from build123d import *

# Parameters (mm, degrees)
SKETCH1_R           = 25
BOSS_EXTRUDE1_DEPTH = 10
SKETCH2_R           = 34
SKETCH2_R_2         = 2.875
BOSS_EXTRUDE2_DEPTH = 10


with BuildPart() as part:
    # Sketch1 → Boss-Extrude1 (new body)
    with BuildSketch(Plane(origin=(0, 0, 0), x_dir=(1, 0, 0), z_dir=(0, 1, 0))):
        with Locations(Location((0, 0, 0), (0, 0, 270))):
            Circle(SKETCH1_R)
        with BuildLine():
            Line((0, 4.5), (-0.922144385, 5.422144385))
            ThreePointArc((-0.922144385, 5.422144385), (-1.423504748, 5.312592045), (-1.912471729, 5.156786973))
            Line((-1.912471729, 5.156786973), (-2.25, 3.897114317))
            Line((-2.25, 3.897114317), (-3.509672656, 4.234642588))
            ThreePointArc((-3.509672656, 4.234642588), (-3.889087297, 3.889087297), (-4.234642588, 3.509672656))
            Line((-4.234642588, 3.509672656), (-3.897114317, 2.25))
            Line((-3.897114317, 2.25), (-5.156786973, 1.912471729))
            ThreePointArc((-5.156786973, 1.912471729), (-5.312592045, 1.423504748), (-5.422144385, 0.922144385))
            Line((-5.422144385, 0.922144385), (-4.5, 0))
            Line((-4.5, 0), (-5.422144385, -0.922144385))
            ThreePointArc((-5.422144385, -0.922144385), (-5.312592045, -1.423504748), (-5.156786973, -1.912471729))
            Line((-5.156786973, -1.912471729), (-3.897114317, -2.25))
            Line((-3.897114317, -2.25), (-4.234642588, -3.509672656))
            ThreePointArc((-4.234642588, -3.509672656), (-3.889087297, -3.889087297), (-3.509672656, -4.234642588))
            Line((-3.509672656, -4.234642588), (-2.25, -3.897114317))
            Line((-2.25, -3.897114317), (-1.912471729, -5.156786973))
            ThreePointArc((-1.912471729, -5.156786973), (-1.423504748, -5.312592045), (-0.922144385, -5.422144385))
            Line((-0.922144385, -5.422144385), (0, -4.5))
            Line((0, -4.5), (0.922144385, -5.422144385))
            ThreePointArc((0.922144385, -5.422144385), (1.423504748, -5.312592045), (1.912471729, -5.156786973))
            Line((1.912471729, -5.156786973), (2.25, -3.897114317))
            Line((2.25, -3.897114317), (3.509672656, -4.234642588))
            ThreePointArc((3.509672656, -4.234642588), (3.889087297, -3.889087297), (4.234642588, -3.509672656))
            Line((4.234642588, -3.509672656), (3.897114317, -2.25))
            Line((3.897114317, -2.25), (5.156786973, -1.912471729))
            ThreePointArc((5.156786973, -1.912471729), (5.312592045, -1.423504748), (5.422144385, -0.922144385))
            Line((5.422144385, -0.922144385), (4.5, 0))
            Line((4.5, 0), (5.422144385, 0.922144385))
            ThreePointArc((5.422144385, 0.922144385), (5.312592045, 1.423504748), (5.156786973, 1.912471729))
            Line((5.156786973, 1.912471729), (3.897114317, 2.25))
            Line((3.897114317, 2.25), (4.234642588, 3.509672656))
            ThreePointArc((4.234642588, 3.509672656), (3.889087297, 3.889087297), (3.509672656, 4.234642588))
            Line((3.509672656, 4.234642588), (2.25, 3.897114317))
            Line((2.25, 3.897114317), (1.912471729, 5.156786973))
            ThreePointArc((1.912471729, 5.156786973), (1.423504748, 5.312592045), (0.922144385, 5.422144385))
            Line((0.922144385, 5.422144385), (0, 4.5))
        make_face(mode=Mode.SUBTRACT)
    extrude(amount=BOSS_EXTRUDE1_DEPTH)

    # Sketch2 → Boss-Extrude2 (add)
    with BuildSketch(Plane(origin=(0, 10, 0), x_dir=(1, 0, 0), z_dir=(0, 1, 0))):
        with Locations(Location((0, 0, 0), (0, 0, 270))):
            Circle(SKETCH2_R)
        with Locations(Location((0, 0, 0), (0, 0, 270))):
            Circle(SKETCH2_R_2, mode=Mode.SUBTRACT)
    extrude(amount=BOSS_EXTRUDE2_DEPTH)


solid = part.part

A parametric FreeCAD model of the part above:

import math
import FreeCAD as App
import Part
import Sketcher

V = App.Vector
Q = App.Units.Quantity

doc = App.newDocument("Part")
params = doc.addObject("Spreadsheet::Sheet", "Params")
for row, (alias, value) in enumerate([
    ("sketch1_diameter", "50 mm"),
    ("sketch1_radius", "5.5 mm"),
    ("pad1_length", "10 mm"),
    ("sketch2_diameter", "68 mm"),
    ("sketch2_diameter2", "5.75 mm"),
    ("pad2_length", "10 mm"),
], start=1):
    params.set(f"A{row}", alias)
    params.set(f"B{row}", "=" + value)
    params.setAlias(f"B{row}", alias)

body = doc.addObject("PartDesign::Body", "Body")

sketch1 = body.newObject("Sketcher::SketchObject", "Sketch")
sketch1.AttachmentSupport = (doc.getObject("XZ_Plane"), [""])
sketch1.MapMode = "FlatFace"
sketch1.addGeometry(Part.Circle(V(0, 0, 0), V(0, 0, 1), 25), False)
sketch1.addGeometry(Part.LineSegment(V(-0.922144, -5.422144, 0), V(0, -4.5, 0)), False)
sketch1.addGeometry(Part.LineSegment(V(0, -4.5, 0), V(0.922144, -5.422144, 0)), False)
sketch1.addGeometry(Part.ArcOfCircle(Part.Circle(V(0, 0, 0), V(0, 0, 1), 5.5), math.radians(-80.348054), math.radians(-69.651946)), False)
sketch1.addGeometry(Part.LineSegment(V(1.912472, -5.156787, 0), V(2.25, -3.897114, 0)), False)
sketch1.addGeometry(Part.LineSegment(V(2.25, -3.897114, 0), V(3.509673, -4.234643, 0)), False)
sketch1.addGeometry(Part.ArcOfCircle(Part.Circle(V(0, 0, 0), V(0, 0, 1), 5.5), math.radians(-50.348054), math.radians(-39.651946)), False)
sketch1.addGeometry(Part.LineSegment(V(4.234643, -3.509673, 0), V(3.897114, -2.25, 0)), False)
sketch1.addGeometry(Part.LineSegment(V(3.897114, -2.25, 0), V(5.156787, -1.912472, 0)), False)
sketch1.addGeometry(Part.ArcOfCircle(Part.Circle(V(0, 0, 0), V(0, 0, 1), 5.5), math.radians(-20.348054), math.radians(-9.651946)), False)
sketch1.addGeometry(Part.LineSegment(V(5.422144, -0.922144, 0), V(4.5, 0, 0)), False)
sketch1.addGeometry(Part.LineSegment(V(4.5, 0, 0), V(5.422144, 0.922144, 0)), False)
sketch1.addGeometry(Part.ArcOfCircle(Part.Circle(V(0, 0, 0), V(0, 0, 1), 5.5), math.radians(9.651946), math.radians(20.348054)), False)
sketch1.addGeometry(Part.LineSegment(V(5.156787, 1.912472, 0), V(3.897114, 2.25, 0)), False)
sketch1.addGeometry(Part.LineSegment(V(3.897114, 2.25, 0), V(4.234643, 3.509673, 0)), False)
sketch1.addGeometry(Part.ArcOfCircle(Part.Circle(V(0, 0, 0), V(0, 0, 1), 5.5), math.radians(39.651946), math.radians(50.348054)), False)
sketch1.addGeometry(Part.LineSegment(V(3.509673, 4.234643, 0), V(2.25, 3.897114, 0)), False)
sketch1.addGeometry(Part.LineSegment(V(2.25, 3.897114, 0), V(1.912472, 5.156787, 0)), False)
sketch1.addGeometry(Part.ArcOfCircle(Part.Circle(V(0, 0, 0), V(0, 0, 1), 5.5), math.radians(69.651946), math.radians(80.348054)), False)
sketch1.addGeometry(Part.LineSegment(V(0.922144, 5.422144, 0), V(0, 4.5, 0)), False)
sketch1.addGeometry(Part.LineSegment(V(0, 4.5, 0), V(-0.922144, 5.422144, 0)), False)
sketch1.addGeometry(Part.ArcOfCircle(Part.Circle(V(0, 0, 0), V(0, 0, 1), 5.5), math.radians(99.651946), math.radians(110.348054)), False)
sketch1.addGeometry(Part.LineSegment(V(-1.912472, 5.156787, 0), V(-2.25, 3.897114, 0)), False)
sketch1.addGeometry(Part.LineSegment(V(-2.25, 3.897114, 0), V(-3.509673, 4.234643, 0)), False)
sketch1.addGeometry(Part.ArcOfCircle(Part.Circle(V(0, 0, 0), V(0, 0, 1), 5.5), math.radians(129.651946), math.radians(140.348054)), False)
sketch1.addGeometry(Part.LineSegment(V(-4.234643, 3.509673, 0), V(-3.897114, 2.25, 0)), False)
sketch1.addGeometry(Part.LineSegment(V(-3.897114, 2.25, 0), V(-5.156787, 1.912472, 0)), False)
sketch1.addGeometry(Part.ArcOfCircle(Part.Circle(V(0, 0, 0), V(0, 0, 1), 5.5), math.radians(159.651946), math.radians(170.348054)), False)
sketch1.addGeometry(Part.LineSegment(V(-5.422144, 0.922144, 0), V(-4.5, 0, 0)), False)
sketch1.addGeometry(Part.LineSegment(V(-4.5, 0, 0), V(-5.422144, -0.922144, 0)), False)
sketch1.addGeometry(Part.ArcOfCircle(Part.Circle(V(0, 0, 0), V(0, 0, 1), 5.5), math.radians(-170.348054), math.radians(-159.651946)), False)
sketch1.addGeometry(Part.LineSegment(V(-5.156787, -1.912472, 0), V(-3.897114, -2.25, 0)), False)
sketch1.addGeometry(Part.LineSegment(V(-3.897114, -2.25, 0), V(-4.234643, -3.509673, 0)), False)
sketch1.addGeometry(Part.ArcOfCircle(Part.Circle(V(0, 0, 0), V(0, 0, 1), 5.5), math.radians(-140.348054), math.radians(-129.651946)), False)
sketch1.addGeometry(Part.LineSegment(V(-3.509673, -4.234643, 0), V(-2.25, -3.897114, 0)), False)
sketch1.addGeometry(Part.LineSegment(V(-2.25, -3.897114, 0), V(-1.912472, -5.156787, 0)), False)
sketch1.addGeometry(Part.ArcOfCircle(Part.Circle(V(0, 0, 0), V(0, 0, 1), 5.5), math.radians(-110.348054), math.radians(-99.651946)), False)
sketch1.addConstraint(Sketcher.Constraint("Coincident", 1, 2, 2, 1))
sketch1.addConstraint(Sketcher.Constraint("Coincident", 2, 2, 3, 1))
sketch1.addConstraint(Sketcher.Constraint("Coincident", 3, 2, 4, 1))
sketch1.addConstraint(Sketcher.Constraint("Coincident", 4, 2, 5, 1))
sketch1.addConstraint(Sketcher.Constraint("Coincident", 5, 2, 6, 1))
sketch1.addConstraint(Sketcher.Constraint("Coincident", 6, 2, 7, 1))
sketch1.addConstraint(Sketcher.Constraint("Coincident", 7, 2, 8, 1))
sketch1.addConstraint(Sketcher.Constraint("Coincident", 8, 2, 9, 1))
sketch1.addConstraint(Sketcher.Constraint("Coincident", 9, 2, 10, 1))
sketch1.addConstraint(Sketcher.Constraint("Coincident", 10, 2, 11, 1))
sketch1.addConstraint(Sketcher.Constraint("Coincident", 11, 2, 12, 1))
sketch1.addConstraint(Sketcher.Constraint("Coincident", 12, 2, 13, 1))
sketch1.addConstraint(Sketcher.Constraint("Coincident", 13, 2, 14, 1))
sketch1.addConstraint(Sketcher.Constraint("Coincident", 14, 2, 15, 1))
sketch1.addConstraint(Sketcher.Constraint("Coincident", 15, 2, 16, 1))
sketch1.addConstraint(Sketcher.Constraint("Coincident", 16, 2, 17, 1))
sketch1.addConstraint(Sketcher.Constraint("Coincident", 17, 2, 18, 1))
sketch1.addConstraint(Sketcher.Constraint("Coincident", 18, 2, 19, 1))
sketch1.addConstraint(Sketcher.Constraint("Coincident", 19, 2, 20, 1))
sketch1.addConstraint(Sketcher.Constraint("Coincident", 20, 2, 21, 1))
sketch1.addConstraint(Sketcher.Constraint("Coincident", 21, 2, 22, 1))
sketch1.addConstraint(Sketcher.Constraint("Coincident", 22, 2, 23, 1))
sketch1.addConstraint(Sketcher.Constraint("Coincident", 23, 2, 24, 1))
sketch1.addConstraint(Sketcher.Constraint("Coincident", 24, 2, 25, 1))
sketch1.addConstraint(Sketcher.Constraint("Coincident", 25, 2, 26, 1))
sketch1.addConstraint(Sketcher.Constraint("Coincident", 26, 2, 27, 1))
sketch1.addConstraint(Sketcher.Constraint("Coincident", 27, 2, 28, 1))
sketch1.addConstraint(Sketcher.Constraint("Coincident", 28, 2, 29, 1))
sketch1.addConstraint(Sketcher.Constraint("Coincident", 29, 2, 30, 1))
sketch1.addConstraint(Sketcher.Constraint("Coincident", 30, 2, 31, 1))
sketch1.addConstraint(Sketcher.Constraint("Coincident", 31, 2, 32, 1))
sketch1.addConstraint(Sketcher.Constraint("Coincident", 32, 2, 33, 1))
sketch1.addConstraint(Sketcher.Constraint("Coincident", 33, 2, 34, 1))
sketch1.addConstraint(Sketcher.Constraint("Coincident", 34, 2, 35, 1))
sketch1.addConstraint(Sketcher.Constraint("Coincident", 35, 2, 36, 1))
sketch1.addConstraint(Sketcher.Constraint("Coincident", 36, 2, 1, 1))
sketch1.addConstraint(Sketcher.Constraint("Coincident", 0, 3, -1, 1))
sketch1.addConstraint(Sketcher.Constraint("Coincident", 3, 3, -1, 1))
sketch1.addConstraint(Sketcher.Constraint("Coincident", 6, 3, -1, 1))
sketch1.addConstraint(Sketcher.Constraint("Coincident", 9, 3, -1, 1))
sketch1.addConstraint(Sketcher.Constraint("Coincident", 12, 3, -1, 1))
sketch1.addConstraint(Sketcher.Constraint("Coincident", 15, 3, -1, 1))
sketch1.addConstraint(Sketcher.Constraint("Coincident", 18, 3, -1, 1))
sketch1.addConstraint(Sketcher.Constraint("Coincident", 21, 3, -1, 1))
sketch1.addConstraint(Sketcher.Constraint("Coincident", 24, 3, -1, 1))
sketch1.addConstraint(Sketcher.Constraint("Coincident", 27, 3, -1, 1))
sketch1.addConstraint(Sketcher.Constraint("Coincident", 30, 3, -1, 1))
sketch1.addConstraint(Sketcher.Constraint("Coincident", 33, 3, -1, 1))
sketch1.addConstraint(Sketcher.Constraint("Coincident", 36, 3, -1, 1))
sketch1.addConstraint(Sketcher.Constraint("Equal", 3, 6))
sketch1.addConstraint(Sketcher.Constraint("Equal", 6, 9))
sketch1.addConstraint(Sketcher.Constraint("Equal", 9, 12))
sketch1.addConstraint(Sketcher.Constraint("Equal", 12, 15))
sketch1.addConstraint(Sketcher.Constraint("Equal", 15, 18))
sketch1.addConstraint(Sketcher.Constraint("Equal", 18, 21))
sketch1.addConstraint(Sketcher.Constraint("Equal", 21, 24))
sketch1.addConstraint(Sketcher.Constraint("Equal", 24, 27))
sketch1.addConstraint(Sketcher.Constraint("Equal", 27, 30))
sketch1.addConstraint(Sketcher.Constraint("Equal", 30, 33))
sketch1.addConstraint(Sketcher.Constraint("Equal", 33, 36))
sketch1.addConstraint(Sketcher.Constraint("Symmetric", 1, 2, 19, 2, -1, 1))
sketch1.addConstraint(Sketcher.Constraint("Symmetric", 4, 2, 22, 2, -1, 1))
sketch1.addConstraint(Sketcher.Constraint("Symmetric", 7, 2, 25, 2, -1, 1))
sketch1.addConstraint(Sketcher.Constraint("Symmetric", 10, 2, 28, 2, -1, 1))
sketch1.addConstraint(Sketcher.Constraint("Symmetric", 13, 2, 31, 2, -1, 1))
sketch1.addConstraint(Sketcher.Constraint("Symmetric", 16, 2, 34, 2, -1, 1))
sketch1.addConstraint(Sketcher.Constraint("Symmetric", 16, 2, 22, 2, -2))
sketch1.addConstraint(Sketcher.Constraint("Symmetric", 13, 2, 25, 2, -2))
sketch1.addConstraint(Sketcher.Constraint("PointOnObject", 1, 2, -2))
sketch1.addConstraint(Sketcher.Constraint("PointOnObject", 10, 2, -1))
sketch1.addConstraint(Sketcher.Constraint("Perpendicular", 1, 2))
sketch1.addConstraint(Sketcher.Constraint("Perpendicular", 4, 5))
sketch1.addConstraint(Sketcher.Constraint("Perpendicular", 7, 8))
sketch1.addConstraint(Sketcher.Constraint("Parallel", 2, 10))
sketch1.addConstraint(Sketcher.Constraint("Perpendicular", 10, 11))
sketch1.addConstraint(Sketcher.Constraint("Parallel", 5, 13))
sketch1.addConstraint(Sketcher.Constraint("Perpendicular", 13, 14))
sketch1.addConstraint(Sketcher.Constraint("Parallel", 8, 16))
sketch1.addConstraint(Sketcher.Constraint("Perpendicular", 16, 17))
sketch1.addConstraint(Sketcher.Constraint("Parallel", 11, 19))
sketch1.addConstraint(Sketcher.Constraint("Perpendicular", 19, 20))
sketch1.addConstraint(Sketcher.Constraint("Parallel", 14, 22))
sketch1.addConstraint(Sketcher.Constraint("Perpendicular", 22, 23))
sketch1.addConstraint(Sketcher.Constraint("Parallel", 17, 25))
sketch1.addConstraint(Sketcher.Constraint("Perpendicular", 25, 26))
sketch1.addConstraint(Sketcher.Constraint("Parallel", 20, 28))
sketch1.addConstraint(Sketcher.Constraint("Perpendicular", 28, 29))
sketch1.addConstraint(Sketcher.Constraint("Parallel", 23, 31))
sketch1.addConstraint(Sketcher.Constraint("Perpendicular", 31, 32))
sketch1.addConstraint(Sketcher.Constraint("Parallel", 26, 34))
sketch1.addConstraint(Sketcher.Constraint("Perpendicular", 34, 35))
sketch1.addConstraint(Sketcher.Constraint("Horizontal", 18, 2, 20, 2))
sketch1.addConstraint(Sketcher.Constraint("Horizontal", 17, 2, 21, 2))
sketch1.addConstraint(Sketcher.Constraint("Equal", 2, 4))
sketch1.addConstraint(Sketcher.Constraint("Equal", 4, 5))
sketch1.addConstraint(Sketcher.Constraint("Equal", 5, 7))
sketch1.addConstraint(Sketcher.Constraint("Equal", 7, 8))
sketch1.addConstraint(Sketcher.Constraint("Equal", 8, 10))
sketch1.addConstraint(Sketcher.Constraint("Diameter", 0, 50.0))
sketch1.addConstraint(Sketcher.Constraint("Radius", 3, 5.5))
sketch1.addConstraint(Sketcher.Constraint("Angle", 4, Q("75 deg")))
sketch1.addConstraint(Sketcher.Constraint("DistanceY", 1, 2, -1, 1, 4.5))
sketch1.setExpression("Constraints[98]", "Params.sketch1_diameter")
sketch1.setExpression("Constraints[99]", "Params.sketch1_radius")
pad1 = body.newObject("PartDesign::Pad", "Pad")
pad1.Profile = sketch1
pad1.setExpression("Length", "Params.pad1_length")
pad1.Reversed = True

sketch2 = body.newObject("Sketcher::SketchObject", "Sketch001")
sketch2.AttachmentSupport = (doc.getObject("XZ_Plane"), [""])
sketch2.MapMode = "FlatFace"
sketch2.AttachmentOffset = App.Placement(V(0, 0, -10), App.Rotation())
sketch2.addGeometry(Part.Circle(V(0, 0, 0), V(0, 0, 1), 34), False)
sketch2.addGeometry(Part.Circle(V(0, 0, 0), V(0, 0, 1), 2.875), False)
sketch2.addConstraint(Sketcher.Constraint("Coincident", 0, 3, -1, 1))
sketch2.addConstraint(Sketcher.Constraint("Coincident", 1, 3, -1, 1))
sketch2.addConstraint(Sketcher.Constraint("Diameter", 0, 68.0))
sketch2.addConstraint(Sketcher.Constraint("Diameter", 1, 5.75))
sketch2.setExpression("Constraints[2]", "Params.sketch2_diameter")
sketch2.setExpression("Constraints[3]", "Params.sketch2_diameter2")
pad2 = body.newObject("PartDesign::Pad", "Pad001")
pad2.Profile = sketch2
pad2.setExpression("Length", "Params.pad2_length")
pad2.Reversed = True

doc.recompute()
